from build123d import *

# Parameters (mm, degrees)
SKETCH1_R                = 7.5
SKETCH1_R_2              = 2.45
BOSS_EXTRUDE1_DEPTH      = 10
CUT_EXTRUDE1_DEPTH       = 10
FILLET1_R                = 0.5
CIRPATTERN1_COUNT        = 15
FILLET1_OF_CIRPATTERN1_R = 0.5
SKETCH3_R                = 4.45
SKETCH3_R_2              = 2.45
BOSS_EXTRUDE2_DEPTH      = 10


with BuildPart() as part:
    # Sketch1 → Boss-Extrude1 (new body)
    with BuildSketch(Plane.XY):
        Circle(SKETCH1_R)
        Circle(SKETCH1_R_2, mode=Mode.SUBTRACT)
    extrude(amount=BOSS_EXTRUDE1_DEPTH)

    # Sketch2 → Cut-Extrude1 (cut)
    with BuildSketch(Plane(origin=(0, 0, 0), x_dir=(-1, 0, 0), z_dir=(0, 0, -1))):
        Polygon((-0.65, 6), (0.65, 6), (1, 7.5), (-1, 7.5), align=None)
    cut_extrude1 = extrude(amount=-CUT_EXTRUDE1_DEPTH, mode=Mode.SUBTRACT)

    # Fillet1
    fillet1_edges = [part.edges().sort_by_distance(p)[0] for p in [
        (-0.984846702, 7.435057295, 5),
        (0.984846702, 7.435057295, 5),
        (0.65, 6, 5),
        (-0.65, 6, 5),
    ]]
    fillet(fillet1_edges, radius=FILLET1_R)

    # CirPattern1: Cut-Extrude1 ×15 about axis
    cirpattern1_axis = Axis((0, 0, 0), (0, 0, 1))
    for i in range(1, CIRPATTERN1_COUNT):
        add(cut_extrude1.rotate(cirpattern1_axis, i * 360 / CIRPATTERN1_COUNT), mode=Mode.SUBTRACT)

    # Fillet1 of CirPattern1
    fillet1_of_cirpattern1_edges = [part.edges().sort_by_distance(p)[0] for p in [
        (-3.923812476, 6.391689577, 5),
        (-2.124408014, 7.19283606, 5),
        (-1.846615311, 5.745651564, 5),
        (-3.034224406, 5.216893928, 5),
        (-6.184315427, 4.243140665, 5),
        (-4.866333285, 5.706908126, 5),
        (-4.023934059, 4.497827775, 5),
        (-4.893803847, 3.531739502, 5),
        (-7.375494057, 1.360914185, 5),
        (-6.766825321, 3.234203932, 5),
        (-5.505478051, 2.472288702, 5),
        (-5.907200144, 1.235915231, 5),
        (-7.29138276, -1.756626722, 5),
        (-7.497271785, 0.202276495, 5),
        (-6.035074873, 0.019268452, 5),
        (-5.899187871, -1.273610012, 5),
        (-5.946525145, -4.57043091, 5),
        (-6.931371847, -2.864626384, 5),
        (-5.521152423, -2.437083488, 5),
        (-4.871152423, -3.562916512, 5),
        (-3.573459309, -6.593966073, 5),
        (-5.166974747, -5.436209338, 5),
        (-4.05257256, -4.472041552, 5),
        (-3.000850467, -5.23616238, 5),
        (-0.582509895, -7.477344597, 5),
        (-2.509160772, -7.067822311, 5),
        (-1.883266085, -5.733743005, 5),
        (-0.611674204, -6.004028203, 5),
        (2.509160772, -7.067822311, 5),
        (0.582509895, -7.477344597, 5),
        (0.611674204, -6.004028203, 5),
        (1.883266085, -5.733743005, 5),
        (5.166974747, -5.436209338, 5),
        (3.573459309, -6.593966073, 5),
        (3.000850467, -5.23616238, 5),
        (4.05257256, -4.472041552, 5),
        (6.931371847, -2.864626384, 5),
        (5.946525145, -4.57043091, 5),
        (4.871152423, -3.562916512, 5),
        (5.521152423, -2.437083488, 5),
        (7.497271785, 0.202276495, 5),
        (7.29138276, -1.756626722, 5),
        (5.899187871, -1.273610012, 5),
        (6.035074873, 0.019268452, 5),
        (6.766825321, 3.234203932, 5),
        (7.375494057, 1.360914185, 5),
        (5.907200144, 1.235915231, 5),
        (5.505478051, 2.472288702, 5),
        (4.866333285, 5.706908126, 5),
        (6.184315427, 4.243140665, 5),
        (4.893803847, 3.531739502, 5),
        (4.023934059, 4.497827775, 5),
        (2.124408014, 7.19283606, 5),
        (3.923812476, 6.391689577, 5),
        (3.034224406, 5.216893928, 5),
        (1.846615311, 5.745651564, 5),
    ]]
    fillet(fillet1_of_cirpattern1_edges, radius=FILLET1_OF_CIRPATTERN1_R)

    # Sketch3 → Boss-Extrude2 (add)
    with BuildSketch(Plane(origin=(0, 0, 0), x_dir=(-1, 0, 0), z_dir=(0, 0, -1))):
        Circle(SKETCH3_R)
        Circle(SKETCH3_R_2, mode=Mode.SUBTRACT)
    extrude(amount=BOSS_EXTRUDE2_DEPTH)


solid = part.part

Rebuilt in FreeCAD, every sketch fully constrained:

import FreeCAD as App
import Part
import Sketcher


def edges_at(feature, points):
    """Names of the edges that pass closest to the given points."""
    edges = feature.Shape.Edges
    near = lambda p: min(range(len(edges)), key=lambda i: edges[i].distToShape(Part.Vertex(*p))[0])
    return sorted({f"Edge{near(p) + 1}" for p in points})


def add_polygon(sketch, points):
    """Adds a closed chain of lines whose ends are joined by coincident constraints."""
    first, n = sketch.GeometryCount, len(points)
    for a, b in zip(points, points[1:] + points[:1]):
        sketch.addGeometry(Part.LineSegment(App.Vector(*a, 0), App.Vector(*b, 0)), False)
    for i in range(n):
        sketch.addConstraint(Sketcher.Constraint("Coincident", first + i, 2, first + (i + 1) % n, 1))

doc = App.newDocument("Part")
params = doc.addObject("Spreadsheet::Sheet", "Params")
for row, (alias, value) in enumerate([
    ("sketch1_diameter", "15 mm"),
    ("sketch1_diameter2", "4.9 mm"),
    ("pad1_length", "10 mm"),
    ("sketch2_width", "2 mm"),
    ("sketch2_width2", "1.3 mm"),
    ("pocket1_length", "10 mm"),
    ("fillet_radius", "0.5 mm"),
    ("fillet2_radius", "0.5 mm"),
    ("sketch3_diameter", "8.9 mm"),
    ("sketch3_diameter2", "4.9 mm"),
    ("pad2_length", "10 mm"),
], start=1):
    params.set(f"A{row}", alias)
    params.set(f"B{row}", "=" + value)
    params.setAlias(f"B{row}", alias)

body = doc.addObject("PartDesign::Body", "Body")

# Sketch on XY plane
sketch1 = doc.addObject("Sketcher::SketchObject", "Sketch")
body.addObject(sketch1)
sketch1.AttachmentSupport = (doc.XY_Plane, [""])
sketch1.MapMode = "FlatFace"
sketch1.addGeometry(Part.Circle(App.Vector(0, 0, 0), App.Vector(0, 0, 1), 7.5), False)
sketch1.addGeometry(Part.Circle(App.Vector(0, 0, 0), App.Vector(0, 0, 1), 2.5), False)
sketch1.addConstraint(Sketcher.Constraint("Coincident", 0, 3, -1, 1))
sketch1.addConstraint(Sketcher.Constraint("Coincident", 1, 3, -1, 1))
sketch1.addConstraint(Sketcher.Constraint("Diameter", 0, 15.0))
sketch1.addConstraint(Sketcher.Constraint("Diameter", 1, 4.9))
sketch1.setExpression("Constraints[2]", "Params.sketch1_diameter")
sketch1.setExpression("Constraints[3]", "Params.sketch1_diameter2")
pad1 = doc.addObject("PartDesign::Pad", "Pad")
body.addObject(pad1)
pad1.Profile = sketch1
pad1.setExpression("Length", "Params.pad1_length")

# Sketch on XY plane
sketch2 = doc.addObject("Sketcher::SketchObject", "Sketch001")
body.addObject(sketch2)
sketch2.AttachmentSupport = (doc.XY_Plane, [""])
sketch2.MapMode = "FlatFace"
add_polygon(sketch2, [(0.7, 6), (-0.7, 6), (-1, 7.5), (1, 7.5)])  # lines 0-3
sketch2.addConstraint(Sketcher.Constraint("Horizontal", 0))
sketch2.addConstraint(Sketcher.Constraint("Horizontal", 2))
sketch2.addConstraint(Sketcher.Constraint("Equal", 1, 3))
sketch2.addConstraint(Sketcher.Constraint("DistanceX", 2, 1, 2, 2, 2.0))
sketch2.addConstraint(Sketcher.Constraint("DistanceX", 0, 2, 0, 1, 1.3))
sketch2.addConstraint(Sketcher.Constraint("DistanceY", -1, 1, 0, 2, 6.0))
sketch2.addConstraint(Sketcher.Constraint("DistanceX", 1, 2, -1, 1, 1.0))
sketch2.addConstraint(Sketcher.Constraint("DistanceY", -1, 1, 1, 2, 7.5))
sketch2.setExpression("Constraints[7]", "Params.sketch2_width")
sketch2.setExpression("Constraints[8]", "Params.sketch2_width2")
pocket1 = doc.addObject("PartDesign::Pocket", "Pocket")
body.addObject(pocket1)
pocket1.Profile = sketch2
pocket1.setExpression("Length", "Params.pocket1_length")
pocket1.Reversed = True
doc.recompute()

fillet = doc.addObject("PartDesign::Fillet", "Fillet")
body.addObject(fillet)
fillet.Base = (pocket1, edges_at(pocket1, [
    (-0.985, 7.435, 5),
    (0.985, 7.435, 5),
    (0.65, 6, 5),
    (-0.65, 6, 5),
]))
fillet.setExpression("Radius", "Params.fillet_radius")
doc.recompute()

polarpattern = doc.addObject("PartDesign::PolarPattern", "PolarPattern")
body.addObject(polarpattern)
polarpattern.Originals = [pocket1]
polarpattern.Axis = (doc.Z_Axis, [""])
polarpattern.Angle = 360
polarpattern.Occurrences = 15
body.Tip = polarpattern
doc.recompute()

fillet2 = doc.addObject("PartDesign::Fillet", "Fillet001")
body.addObject(fillet2)
fillet2.Base = (polarpattern, edges_at(polarpattern, [
    (-3.924, 6.392, 5),
    (-2.124, 7.193, 5),
    (-1.847, 5.746, 5),
    (-3.034, 5.217, 5),
    (-6.184, 4.243, 5),
    (-4.866, 5.707, 5),
    (-4.024, 4.498, 5),
    (-4.894, 3.532, 5),
    (-7.375, 1.361, 5),
    (-6.767, 3.234, 5),
    (-5.505, 2.472, 5),
    (-5.907, 1.236, 5),
    (-7.291, -1.757, 5),
    (-7.497, 0.202, 5),
    (-6.035, 0.019, 5),
    (-5.899, -1.274, 5),
    (-5.947, -4.57, 5),
    (-6.931, -2.865, 5),
    (-5.521, -2.437, 5),
    (-4.871, -3.563, 5),
    (-3.573, -6.594, 5),
    (-5.167, -5.436, 5),
    (-4.053, -4.472, 5),
    (-3.001, -5.236, 5),
    (-0.583, -7.477, 5),
    (-2.509, -7.068, 5),
    (-1.883, -5.734, 5),
    (-0.612, -6.004, 5),
    (2.509, -7.068, 5),
    (0.583, -7.477, 5),
    (0.612, -6.004, 5),
    (1.883, -5.734, 5),
    (5.167, -5.436, 5),
    (3.573, -6.594, 5),
    (3.001, -5.236, 5),
    (4.053, -4.472, 5),
    (6.931, -2.865, 5),
    (5.947, -4.57, 5),
    (4.871, -3.563, 5),
    (5.521, -2.437, 5),
    (7.497, 0.202, 5),
    (7.291, -1.757, 5),
    (5.899, -1.274, 5),
    (6.035, 0.019, 5),
    (6.767, 3.234, 5),
    (7.375, 1.361, 5),
    (5.907, 1.236, 5),
    (5.505, 2.472, 5),
    (4.866, 5.707, 5),
    (6.184, 4.243, 5),
    (4.894, 3.532, 5),
    (4.024, 4.498, 5),
    (2.124, 7.193, 5),
    (3.924, 6.392, 5),
    (3.034, 5.217, 5),
    (1.847, 5.746, 5),
]))
fillet2.setExpression("Radius", "Params.fillet2_radius")

# Sketch on XY plane
sketch3 = doc.addObject("Sketcher::SketchObject", "Sketch002")
body.addObject(sketch3)
sketch3.AttachmentSupport = (doc.XY_Plane, [""])
sketch3.MapMode = "FlatFace"
sketch3.addGeometry(Part.Circle(App.Vector(0, 0, 0), App.Vector(0, 0, 1), 4.5), False)
sketch3.addGeometry(Part.Circle(App.Vector(0, 0, 0), App.Vector(0, 0, 1), 2.5), False)
sketch3.addConstraint(Sketcher.Constraint("Coincident", 0, 3, -1, 1))
sketch3.addConstraint(Sketcher.Constraint("Coincident", 1, 3, -1, 1))
sketch3.addConstraint(Sketcher.Constraint("Diameter", 0, 8.9))
sketch3.addConstraint(Sketcher.Constraint("Diameter", 1, 4.9))
sketch3.setExpression("Constraints[2]", "Params.sketch3_diameter")
sketch3.setExpression("Constraints[3]", "Params.sketch3_diameter2")
pad2 = doc.addObject("PartDesign::Pad", "Pad001")
body.addObject(pad2)
pad2.Profile = sketch3
pad2.setExpression("Length", "Params.pad2_length")
pad2.Reversed = True

doc.recompute()
